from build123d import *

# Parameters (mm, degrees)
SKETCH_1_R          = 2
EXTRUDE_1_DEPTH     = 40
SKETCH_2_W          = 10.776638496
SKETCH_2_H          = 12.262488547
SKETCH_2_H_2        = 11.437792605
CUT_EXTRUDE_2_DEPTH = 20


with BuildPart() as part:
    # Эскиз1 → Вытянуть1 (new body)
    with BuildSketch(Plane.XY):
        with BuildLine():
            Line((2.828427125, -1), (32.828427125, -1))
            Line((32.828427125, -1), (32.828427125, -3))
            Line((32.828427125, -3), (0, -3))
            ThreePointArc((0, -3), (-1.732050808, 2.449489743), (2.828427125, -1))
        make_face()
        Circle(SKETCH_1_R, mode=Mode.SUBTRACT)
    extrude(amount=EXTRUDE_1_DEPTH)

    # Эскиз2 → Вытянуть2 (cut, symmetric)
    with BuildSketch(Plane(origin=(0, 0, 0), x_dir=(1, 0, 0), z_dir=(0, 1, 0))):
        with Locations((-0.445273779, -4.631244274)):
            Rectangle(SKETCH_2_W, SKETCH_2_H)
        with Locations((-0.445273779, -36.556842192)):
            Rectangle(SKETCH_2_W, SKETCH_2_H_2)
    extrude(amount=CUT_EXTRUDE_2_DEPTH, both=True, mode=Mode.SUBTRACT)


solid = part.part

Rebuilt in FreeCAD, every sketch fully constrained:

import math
import FreeCAD as App
import Part
import Sketcher
from FreeCAD import Vector
Q = App.Units.Quantity

doc = App.newDocument("Part")
body = doc.addObject("PartDesign::Body", "Body")

# Sketch on XY plane
sketch1 = body.newObject("Sketcher::SketchObject", "Sketch")
sketch1.AttachmentSupport = (doc.getObject("XY_Plane"), [""])
sketch1.MapMode = "FlatFace"
sketch1.addGeometry(Part.LineSegment(Vector(32.8, -1, 0), Vector(2.8, -1, 0)), False)
sketch1.addGeometry(Part.ArcOfCircle(Part.Circle(Vector(0, 0, 0), Vector(0, 0, 1), 3), math.radians(-19), math.radians(270)), False)
sketch1.addGeometry(Part.LineSegment(Vector(0, -3, 0), Vector(32.8, -3, 0)), False)
sketch1.addGeometry(Part.LineSegment(Vector(32.8, -3, 0), Vector(32.8, -1, 0)), False)
sketch1.addGeometry(Part.Circle(Vector(0, 0, 0), Vector(0, 0, 1), 2), False)
sketch1.addConstraint(Sketcher.Constraint("Coincident", 0, 2, 1, 1))
sketch1.addConstraint(Sketcher.Constraint("Tangent", 1, 2, 2, 1))
sketch1.addConstraint(Sketcher.Constraint("Coincident", 2, 2, 3, 1))
sketch1.addConstraint(Sketcher.Constraint("Coincident", 3, 2, 0, 1))
sketch1.addConstraint(Sketcher.Constraint("Horizontal", 0))
sketch1.addConstraint(Sketcher.Constraint("Horizontal", 2))
sketch1.addConstraint(Sketcher.Constraint("Vertical", 3))
sketch1.addConstraint(Sketcher.Constraint("Coincident", 1, 3, -1, 1))
sketch1.addConstraint(Sketcher.Constraint("Coincident", 4, 3, -1, 1))
sketch1.addConstraint(Sketcher.Constraint("Diameter", 4, Q("4 mm")))
sketch1.addConstraint(Sketcher.Constraint("Radius", 1, Q("3 mm")))
sketch1.addConstraint(Sketcher.Constraint("DistanceX", 0, 2, 0, 1, Q("30 mm")))
sketch1.addConstraint(Sketcher.Constraint("DistanceY", 3, 1, 3, 2, Q("2 mm")))
pad1 = body.newObject("PartDesign::Pad", "Pad")
pad1.Profile = sketch1
pad1.Length = 40

# Sketch on XZ plane
sketch2 = body.newObject("Sketcher::SketchObject", "Sketch001")
sketch2.AttachmentSupport = (doc.getObject("XZ_Plane"), [""])
sketch2.MapMode = "FlatFace"
sketch2.addGeometry(Part.LineSegment(Vector(-6, -1, 0), Vector(-6, 11, 0)), False)
sketch2.addGeometry(Part.LineSegment(Vector(-6, 11, 0), Vector(5, 11, 0)), False)
sketch2.addGeometry(Part.LineSegment(Vector(5, 11, 0), Vector(5, -1, 0)), False)
sketch2.addGeometry(Part.LineSegment(Vector(5, -1, 0), Vector(-6, -1, 0)), False)
sketch2.addGeometry(Part.LineSegment(Vector(-6, 31, 0), Vector(-6, 42, 0)), False)
sketch2.addGeometry(Part.LineSegment(Vector(-6, 42, 0), Vector(5, 42, 0)), False)
sketch2.addGeometry(Part.LineSegment(Vector(5, 42, 0), Vector(5, 31, 0)), False)
sketch2.addGeometry(Part.LineSegment(Vector(5, 31, 0), Vector(-6, 31, 0)), False)
sketch2.addConstraint(Sketcher.Constraint("Coincident", 0, 2, 1, 1))
sketch2.addConstraint(Sketcher.Constraint("Coincident", 1, 2, 2, 1))
sketch2.addConstraint(Sketcher.Constraint("Coincident", 2, 2, 3, 1))
sketch2.addConstraint(Sketcher.Constraint("Coincident", 3, 2, 0, 1))
sketch2.addConstraint(Sketcher.Constraint("Coincident", 4, 2, 5, 1))
sketch2.addConstraint(Sketcher.Constraint("Coincident", 5, 2, 6, 1))
sketch2.addConstraint(Sketcher.Constraint("Coincident", 6, 2, 7, 1))
sketch2.addConstraint(Sketcher.Constraint("Coincident", 7, 2, 4, 1))
sketch2.addConstraint(Sketcher.Constraint("Vertical", 0))
sketch2.addConstraint(Sketcher.Constraint("Horizontal", 1))
sketch2.addConstraint(Sketcher.Constraint("Vertical", 2))
sketch2.addConstraint(Sketcher.Constraint("Horizontal", 3))
sketch2.addConstraint(Sketcher.Constraint("Vertical", 4))
sketch2.addConstraint(Sketcher.Constraint("Horizontal", 5))
sketch2.addConstraint(Sketcher.Constraint("Vertical", 6))
sketch2.addConstraint(Sketcher.Constraint("Horizontal", 7))
sketch2.addConstraint(Sketcher.Constraint("Vertical", 3, 2, 4, 2))
sketch2.addConstraint(Sketcher.Constraint("Vertical", 2, 2, 5, 2))
sketch2.addConstraint(Sketcher.Constraint("DistanceY", 2, 2, -1, 1, Q("1.5 mm")))
sketch2.addConstraint(Sketcher.Constraint("DistanceX", 1, 1, 1, 2, Q("10.776638 mm")))
sketch2.addConstraint(Sketcher.Constraint("DistanceY", 0, 1, 0, 2, Q("12.262489 mm")))
sketch2.addConstraint(Sketcher.Constraint("DistanceY", 4, 1, 4, 2, Q("11.437793 mm")))
sketch2.addConstraint(Sketcher.Constraint("DistanceY", -1, 1, 4, 2, Q("42.275738 mm")))
sketch2.addConstraint(Sketcher.Constraint("DistanceX", 0, 2, -1, 1, Q("5.833593 mm")))
pocket1 = body.newObject("PartDesign::Pocket", "Pocket")
pocket1.Profile = sketch2
pocket1.Length = 40
pocket1.Midplane = True

doc.recompute()
